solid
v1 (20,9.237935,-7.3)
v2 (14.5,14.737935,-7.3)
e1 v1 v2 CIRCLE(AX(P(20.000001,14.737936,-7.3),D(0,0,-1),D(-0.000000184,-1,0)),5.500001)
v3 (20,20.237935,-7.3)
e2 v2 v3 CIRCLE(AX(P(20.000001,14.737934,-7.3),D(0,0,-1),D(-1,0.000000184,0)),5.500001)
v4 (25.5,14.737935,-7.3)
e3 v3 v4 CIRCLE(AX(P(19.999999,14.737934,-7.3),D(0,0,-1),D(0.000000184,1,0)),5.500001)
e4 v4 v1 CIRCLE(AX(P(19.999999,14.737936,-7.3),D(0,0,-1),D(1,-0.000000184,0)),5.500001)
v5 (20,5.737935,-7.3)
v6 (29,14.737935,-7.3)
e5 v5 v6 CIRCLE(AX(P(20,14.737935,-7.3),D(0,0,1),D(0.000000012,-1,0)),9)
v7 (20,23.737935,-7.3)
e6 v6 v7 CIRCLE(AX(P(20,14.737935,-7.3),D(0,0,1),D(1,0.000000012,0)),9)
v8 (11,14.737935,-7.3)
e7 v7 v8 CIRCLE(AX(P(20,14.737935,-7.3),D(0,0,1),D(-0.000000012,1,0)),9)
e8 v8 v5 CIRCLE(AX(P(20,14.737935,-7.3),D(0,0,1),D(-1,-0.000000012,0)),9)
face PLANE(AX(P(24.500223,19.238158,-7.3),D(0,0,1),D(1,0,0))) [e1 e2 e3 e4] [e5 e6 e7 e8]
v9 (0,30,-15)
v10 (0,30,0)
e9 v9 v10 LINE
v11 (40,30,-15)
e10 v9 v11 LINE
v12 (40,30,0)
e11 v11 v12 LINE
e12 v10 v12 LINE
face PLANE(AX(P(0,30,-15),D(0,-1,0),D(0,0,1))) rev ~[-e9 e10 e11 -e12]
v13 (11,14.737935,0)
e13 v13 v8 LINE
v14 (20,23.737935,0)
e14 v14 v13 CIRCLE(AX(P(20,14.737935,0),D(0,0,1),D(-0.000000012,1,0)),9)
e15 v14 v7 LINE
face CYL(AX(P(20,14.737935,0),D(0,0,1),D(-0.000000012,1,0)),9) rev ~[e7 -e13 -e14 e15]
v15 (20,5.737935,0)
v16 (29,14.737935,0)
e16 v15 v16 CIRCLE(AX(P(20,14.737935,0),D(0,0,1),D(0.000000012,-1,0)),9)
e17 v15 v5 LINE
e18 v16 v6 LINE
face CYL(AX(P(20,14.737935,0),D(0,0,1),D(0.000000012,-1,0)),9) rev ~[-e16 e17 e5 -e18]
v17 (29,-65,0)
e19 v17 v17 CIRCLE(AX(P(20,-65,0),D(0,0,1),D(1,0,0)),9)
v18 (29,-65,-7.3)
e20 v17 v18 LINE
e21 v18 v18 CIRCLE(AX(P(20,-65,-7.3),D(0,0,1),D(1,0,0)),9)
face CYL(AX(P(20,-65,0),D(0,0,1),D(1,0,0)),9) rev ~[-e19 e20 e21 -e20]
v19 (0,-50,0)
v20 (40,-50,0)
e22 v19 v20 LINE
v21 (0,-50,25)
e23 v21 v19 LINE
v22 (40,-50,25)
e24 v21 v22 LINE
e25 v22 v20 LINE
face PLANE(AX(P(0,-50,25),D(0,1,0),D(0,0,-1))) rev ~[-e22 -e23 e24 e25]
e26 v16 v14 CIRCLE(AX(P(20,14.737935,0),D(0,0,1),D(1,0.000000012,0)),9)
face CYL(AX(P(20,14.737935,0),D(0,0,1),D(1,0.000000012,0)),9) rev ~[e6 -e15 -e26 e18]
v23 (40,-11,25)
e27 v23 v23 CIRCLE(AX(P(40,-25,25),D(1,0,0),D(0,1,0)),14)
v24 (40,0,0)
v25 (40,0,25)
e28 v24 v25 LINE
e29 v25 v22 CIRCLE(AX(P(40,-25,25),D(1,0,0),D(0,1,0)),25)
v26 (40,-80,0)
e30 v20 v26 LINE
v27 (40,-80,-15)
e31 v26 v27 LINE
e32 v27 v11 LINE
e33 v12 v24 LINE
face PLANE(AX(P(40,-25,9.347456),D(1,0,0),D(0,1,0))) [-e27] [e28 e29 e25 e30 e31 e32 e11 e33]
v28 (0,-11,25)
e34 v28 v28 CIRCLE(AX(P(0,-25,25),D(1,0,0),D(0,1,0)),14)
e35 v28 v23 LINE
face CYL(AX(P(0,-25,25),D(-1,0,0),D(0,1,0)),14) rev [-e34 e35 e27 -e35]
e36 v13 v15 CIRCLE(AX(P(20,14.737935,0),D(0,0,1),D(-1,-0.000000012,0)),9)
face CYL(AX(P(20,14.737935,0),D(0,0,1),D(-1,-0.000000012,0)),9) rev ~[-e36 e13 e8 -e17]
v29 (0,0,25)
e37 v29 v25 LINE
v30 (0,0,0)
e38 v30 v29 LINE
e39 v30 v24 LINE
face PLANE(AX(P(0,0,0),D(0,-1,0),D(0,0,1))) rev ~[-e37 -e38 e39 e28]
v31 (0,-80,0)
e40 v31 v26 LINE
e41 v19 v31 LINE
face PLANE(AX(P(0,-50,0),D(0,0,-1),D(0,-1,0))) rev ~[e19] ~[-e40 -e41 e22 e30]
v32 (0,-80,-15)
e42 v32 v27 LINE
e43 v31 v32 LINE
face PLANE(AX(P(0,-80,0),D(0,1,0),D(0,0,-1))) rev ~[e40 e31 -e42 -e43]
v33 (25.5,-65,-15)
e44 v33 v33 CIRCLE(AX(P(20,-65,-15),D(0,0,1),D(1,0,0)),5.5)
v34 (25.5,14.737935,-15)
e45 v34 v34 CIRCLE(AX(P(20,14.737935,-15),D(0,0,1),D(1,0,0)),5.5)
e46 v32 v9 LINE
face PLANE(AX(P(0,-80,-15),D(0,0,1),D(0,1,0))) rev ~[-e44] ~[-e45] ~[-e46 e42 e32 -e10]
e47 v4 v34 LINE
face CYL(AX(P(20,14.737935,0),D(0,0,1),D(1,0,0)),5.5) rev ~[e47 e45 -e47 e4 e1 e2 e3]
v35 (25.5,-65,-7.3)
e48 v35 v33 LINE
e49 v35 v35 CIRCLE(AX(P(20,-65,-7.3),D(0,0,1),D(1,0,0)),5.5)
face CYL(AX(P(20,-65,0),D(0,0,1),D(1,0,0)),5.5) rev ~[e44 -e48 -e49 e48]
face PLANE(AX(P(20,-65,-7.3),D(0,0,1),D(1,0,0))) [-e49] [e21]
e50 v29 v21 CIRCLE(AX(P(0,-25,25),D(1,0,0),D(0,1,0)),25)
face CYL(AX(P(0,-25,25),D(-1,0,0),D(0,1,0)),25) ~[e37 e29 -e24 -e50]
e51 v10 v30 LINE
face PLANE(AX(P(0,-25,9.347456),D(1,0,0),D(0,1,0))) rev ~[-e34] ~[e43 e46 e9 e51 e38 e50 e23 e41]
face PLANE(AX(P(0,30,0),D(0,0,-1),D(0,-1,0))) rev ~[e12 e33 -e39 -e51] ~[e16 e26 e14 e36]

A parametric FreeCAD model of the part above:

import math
import FreeCAD as App
import Part
import Sketcher
Q = App.Units.Quantity

doc = App.newDocument("Part")
body = doc.addObject("PartDesign::Body", "Body")

sketch1 = doc.addObject("Sketcher::SketchObject", "Sketch")
body.addObject(sketch1)
sketch1.AttachmentSupport = (doc.YZ_Plane, [""])
sketch1.MapMode = "FlatFace"
sketch1.addGeometry([
    Part.LineSegment(App.Vector(0, 0, 0), App.Vector(0, 25, 0)),
    Part.ArcOfCircle(Part.Circle(App.Vector(-25, 25, 0), App.Vector(0, 0, 1), 25), math.radians(0), math.radians(180)),
    Part.LineSegment(App.Vector(-50, 25, 0), App.Vector(-50, 0, 0)),
    Part.LineSegment(App.Vector(-50, 0, 0), App.Vector(-80, 0, 0)),
    Part.LineSegment(App.Vector(-80, 0, 0), App.Vector(-80, -15, 0)),
    Part.LineSegment(App.Vector(-80, -15, 0), App.Vector(30, -15, 0)),
    Part.LineSegment(App.Vector(30, -15, 0), App.Vector(30, 0, 0)),
    Part.LineSegment(App.Vector(30, 0, 0), App.Vector(0, 0, 0)),
    Part.Circle(App.Vector(-25, 25, 0), App.Vector(0, 0, 1), 14),
], False)
sketch1.addConstraint([
    Sketcher.Constraint("Tangent", 0, 2, 1, 1),
    Sketcher.Constraint("Tangent", 1, 2, 2, 1),
    Sketcher.Constraint("Coincident", 2, 2, 3, 1),
    Sketcher.Constraint("Coincident", 3, 2, 4, 1),
    Sketcher.Constraint("Coincident", 4, 2, 5, 1),
    Sketcher.Constraint("Coincident", 5, 2, 6, 1),
    Sketcher.Constraint("Coincident", 6, 2, 7, 1),
    Sketcher.Constraint("Coincident", 7, 2, 0, 1),
    Sketcher.Constraint("Vertical", 0),
    Sketcher.Constraint("Vertical", 2),
    Sketcher.Constraint("Horizontal", 3),
    Sketcher.Constraint("Vertical", 4),
    Sketcher.Constraint("Horizontal", 5),
    Sketcher.Constraint("Vertical", 6),
    Sketcher.Constraint("Horizontal", 7),
    Sketcher.Constraint("Coincident", 7, 2, -1, 1),
    Sketcher.Constraint("Coincident", 8, 3, 1, 3),
    Sketcher.Constraint("PointOnObject", 2, 2, -1),
    Sketcher.Constraint("Equal", 3, 7),
    Sketcher.Constraint("Diameter", 8, Q("28 mm")),
    Sketcher.Constraint("Radius", 1, Q("25 mm")),
    Sketcher.Constraint("DistanceX", 3, 2, 3, 1, Q("30 mm")),
    Sketcher.Constraint("DistanceY", 0, 1, 0, 2, Q("25 mm")),
    Sketcher.Constraint("DistanceY", 4, 2, 4, 1, Q("15 mm")),
])
pad1 = doc.addObject("PartDesign::Pad", "Pad")
body.addObject(pad1)
pad1.Profile = sketch1
pad1.Length = 40

sketch2 = doc.addObject("Sketcher::SketchObject", "Sketch001")
body.addObject(sketch2)
sketch2.AttachmentSupport = (doc.XY_Plane, [""])
sketch2.MapMode = "FlatFace"
sketch2.addGeometry([
    Part.Circle(App.Vector(20, -65, 0), App.Vector(0, 0, 1), 9),
    Part.Circle(App.Vector(20, -65, 0), App.Vector(0, 0, 1), 6),
    Part.ArcOfCircle(Part.Circle(App.Vector(20, 15, 0), App.Vector(0, 0, 1), 9), math.radians(0), math.radians(90)),
    Part.ArcOfCircle(Part.Circle(App.Vector(20, 15, 0), App.Vector(0, 0, 1), 9), math.radians(90), math.radians(180)),
    Part.ArcOfCircle(Part.Circle(App.Vector(20, 15, 0), App.Vector(0, 0, 1), 9), math.radians(-180), math.radians(-90)),
    Part.ArcOfCircle(Part.Circle(App.Vector(20, 15, 0), App.Vector(0, 0, 1), 9), math.radians(-90), math.radians(0)),
    Part.ArcOfCircle(Part.Circle(App.Vector(20, 15, 0), App.Vector(0, 0, 1), 6), math.radians(90), math.radians(180)),
    Part.ArcOfCircle(Part.Circle(App.Vector(20, 15, 0), App.Vector(0, 0, 1), 6), math.radians(0), math.radians(90)),
    Part.ArcOfCircle(Part.Circle(App.Vector(20, 15, 0), App.Vector(0, 0, 1), 6), math.radians(-90), math.radians(0)),
    Part.ArcOfCircle(Part.Circle(App.Vector(20, 15, 0), App.Vector(0, 0, 1), 6), math.radians(-180), math.radians(-90)),
], False)
sketch2.addConstraint([
    Sketcher.Constraint("Tangent", 2, 2, 3, 1),
    Sketcher.Constraint("Tangent", 3, 2, 4, 1),
    Sketcher.Constraint("Tangent", 4, 2, 5, 1),
    Sketcher.Constraint("Tangent", 5, 2, 2, 1),
    Sketcher.Constraint("Tangent", 6, 1, 7, 2),
    Sketcher.Constraint("Tangent", 7, 1, 8, 2),
    Sketcher.Constraint("Tangent", 8, 1, 9, 2),
    Sketcher.Constraint("Tangent", 9, 1, 6, 2),
    Sketcher.Constraint("Coincident", 1, 3, 0, 3),
    Sketcher.Constraint("Coincident", 6, 3, 2, 3),
    Sketcher.Constraint("Equal", 0, 2),
    Sketcher.Constraint("Equal", 2, 3),
    Sketcher.Constraint("Equal", 1, 6),
    Sketcher.Constraint("Equal", 6, 7),
    Sketcher.Constraint("Horizontal", 9, 3, 3, 2),
    Sketcher.Constraint("Horizontal", 3, 2, 5, 2),
    Sketcher.Constraint("Horizontal", 5, 2, 7, 1),
    Sketcher.Constraint("Horizontal", 7, 1, 9, 1),
    Sketcher.Constraint("Vertical", 1, 3, 2, 3),
    Sketcher.Constraint("Vertical", 9, 3, 2, 2),
    Sketcher.Constraint("Vertical", 2, 2, 4, 2),
    Sketcher.Constraint("Vertical", 4, 2, 6, 1),
    Sketcher.Constraint("Vertical", 6, 1, 8, 1),
    Sketcher.Constraint("Diameter", 0, Q("18 mm")),
    Sketcher.Constraint("Diameter", 1, Q("11 mm")),
    Sketcher.Constraint("DistanceX", -1, 1, 0, 3, Q("20 mm")),
    Sketcher.Constraint("DistanceY", 0, 3, -1, 1, Q("65 mm")),
    Sketcher.Constraint("DistanceY", -1, 1, 2, 3, Q("14.737935 mm")),
])
pocket1 = doc.addObject("PartDesign::Pocket", "Pocket")
body.addObject(pocket1)
pocket1.Profile = sketch2
pocket1.Length = 7.3

sketch3 = doc.addObject("Sketcher::SketchObject", "Sketch002")
body.addObject(sketch3)
sketch3.AttachmentSupport = (doc.XY_Plane, [""])
sketch3.MapMode = "FlatFace"
sketch3.addGeometry([
    Part.Circle(App.Vector(20, 15, 0), App.Vector(0, 0, 1), 6),
    Part.Circle(App.Vector(20, -65, 0), App.Vector(0, 0, 1), 6),
], False)
sketch3.addConstraint([
    Sketcher.Constraint("Equal", 0, 1),
    Sketcher.Constraint("Vertical", 0, 3, 1, 3),
    Sketcher.Constraint("Diameter", 0, Q("11 mm")),
    Sketcher.Constraint("DistanceX", -1, 1, 0, 3, Q("20 mm")),
    Sketcher.Constraint("DistanceY", 1, 3, -1, 1, Q("65 mm")),
    Sketcher.Constraint("DistanceY", -1, 1, 0, 3, Q("14.737935 mm")),
])
pocket2 = doc.addObject("PartDesign::Pocket", "Pocket001")
body.addObject(pocket2)
pocket2.Profile = sketch3
pocket2.Length = 15

doc.recompute()
